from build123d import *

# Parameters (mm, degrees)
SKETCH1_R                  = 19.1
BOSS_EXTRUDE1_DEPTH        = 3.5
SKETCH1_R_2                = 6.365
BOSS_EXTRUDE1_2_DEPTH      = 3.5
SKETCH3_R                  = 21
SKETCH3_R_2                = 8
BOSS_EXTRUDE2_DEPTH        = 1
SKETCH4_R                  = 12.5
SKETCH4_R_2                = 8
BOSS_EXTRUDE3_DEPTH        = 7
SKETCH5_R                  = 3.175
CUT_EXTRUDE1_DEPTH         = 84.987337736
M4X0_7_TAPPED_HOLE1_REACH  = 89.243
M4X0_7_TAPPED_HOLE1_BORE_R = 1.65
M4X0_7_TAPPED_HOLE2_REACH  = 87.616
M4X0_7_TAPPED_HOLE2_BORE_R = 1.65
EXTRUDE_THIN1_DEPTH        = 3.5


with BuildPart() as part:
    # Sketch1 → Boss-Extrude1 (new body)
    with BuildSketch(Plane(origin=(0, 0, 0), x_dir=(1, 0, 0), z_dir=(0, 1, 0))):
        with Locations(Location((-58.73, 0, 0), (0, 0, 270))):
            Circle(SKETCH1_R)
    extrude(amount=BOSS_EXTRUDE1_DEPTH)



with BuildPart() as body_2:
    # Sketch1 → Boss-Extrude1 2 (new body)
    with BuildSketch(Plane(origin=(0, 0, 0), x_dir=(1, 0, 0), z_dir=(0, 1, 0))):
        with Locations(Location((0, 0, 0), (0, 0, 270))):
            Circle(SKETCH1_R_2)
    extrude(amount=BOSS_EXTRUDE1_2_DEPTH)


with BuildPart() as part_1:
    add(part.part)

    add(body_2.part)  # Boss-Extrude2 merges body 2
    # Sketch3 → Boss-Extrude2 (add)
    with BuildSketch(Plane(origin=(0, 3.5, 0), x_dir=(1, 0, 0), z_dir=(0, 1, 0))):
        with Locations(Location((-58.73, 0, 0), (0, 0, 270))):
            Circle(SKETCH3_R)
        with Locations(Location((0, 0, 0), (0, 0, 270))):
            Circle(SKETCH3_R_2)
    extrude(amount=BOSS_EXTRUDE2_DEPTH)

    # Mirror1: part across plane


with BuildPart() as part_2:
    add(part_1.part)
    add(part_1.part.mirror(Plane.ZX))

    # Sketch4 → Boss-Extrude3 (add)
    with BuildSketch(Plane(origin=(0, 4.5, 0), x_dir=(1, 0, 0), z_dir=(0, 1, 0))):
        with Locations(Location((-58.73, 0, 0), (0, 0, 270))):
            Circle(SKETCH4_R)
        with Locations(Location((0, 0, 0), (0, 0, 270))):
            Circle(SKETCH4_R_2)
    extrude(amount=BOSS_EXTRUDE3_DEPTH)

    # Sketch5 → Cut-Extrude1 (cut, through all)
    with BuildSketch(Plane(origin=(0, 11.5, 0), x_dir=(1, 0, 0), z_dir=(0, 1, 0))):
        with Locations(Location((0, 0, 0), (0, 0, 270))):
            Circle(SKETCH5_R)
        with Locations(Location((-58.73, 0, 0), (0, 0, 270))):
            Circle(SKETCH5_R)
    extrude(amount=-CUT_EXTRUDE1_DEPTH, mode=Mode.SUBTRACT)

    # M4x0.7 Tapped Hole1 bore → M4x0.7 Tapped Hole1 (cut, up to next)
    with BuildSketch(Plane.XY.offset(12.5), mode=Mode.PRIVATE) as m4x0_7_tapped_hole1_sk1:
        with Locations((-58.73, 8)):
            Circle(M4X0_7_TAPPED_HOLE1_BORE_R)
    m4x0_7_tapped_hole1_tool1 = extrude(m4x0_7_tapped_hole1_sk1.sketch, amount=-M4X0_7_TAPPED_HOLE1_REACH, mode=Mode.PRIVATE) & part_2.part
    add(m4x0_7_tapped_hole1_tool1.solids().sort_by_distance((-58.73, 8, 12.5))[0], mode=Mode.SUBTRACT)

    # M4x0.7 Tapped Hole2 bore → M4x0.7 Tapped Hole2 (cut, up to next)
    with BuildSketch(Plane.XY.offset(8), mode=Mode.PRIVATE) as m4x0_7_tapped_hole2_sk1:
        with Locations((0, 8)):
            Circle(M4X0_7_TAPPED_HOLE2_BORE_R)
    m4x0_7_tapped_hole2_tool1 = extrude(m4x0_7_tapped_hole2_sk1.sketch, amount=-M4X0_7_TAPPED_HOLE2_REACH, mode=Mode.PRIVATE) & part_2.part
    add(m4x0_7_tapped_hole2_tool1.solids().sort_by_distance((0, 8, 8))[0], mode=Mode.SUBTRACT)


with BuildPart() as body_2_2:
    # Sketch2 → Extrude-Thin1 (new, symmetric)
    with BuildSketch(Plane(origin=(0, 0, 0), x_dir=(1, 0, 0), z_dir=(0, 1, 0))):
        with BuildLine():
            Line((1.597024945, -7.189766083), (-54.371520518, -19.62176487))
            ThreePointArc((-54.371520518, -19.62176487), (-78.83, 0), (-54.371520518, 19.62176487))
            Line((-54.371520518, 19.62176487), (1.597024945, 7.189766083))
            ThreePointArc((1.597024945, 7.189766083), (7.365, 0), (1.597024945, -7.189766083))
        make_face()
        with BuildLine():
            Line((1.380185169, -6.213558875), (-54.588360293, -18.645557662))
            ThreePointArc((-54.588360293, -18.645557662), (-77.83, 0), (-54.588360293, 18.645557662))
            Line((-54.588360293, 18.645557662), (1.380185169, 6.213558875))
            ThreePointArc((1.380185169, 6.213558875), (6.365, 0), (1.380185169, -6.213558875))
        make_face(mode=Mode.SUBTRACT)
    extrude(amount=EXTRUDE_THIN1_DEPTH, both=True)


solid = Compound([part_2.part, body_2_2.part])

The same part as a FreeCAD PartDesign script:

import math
import FreeCAD as App
import Part
import Sketcher
Q = App.Units.Quantity

doc = App.newDocument("Part")
params = doc.addObject("Spreadsheet::Sheet", "Params")
for row, (alias, value) in enumerate([
    ("sketch1_diameter", "38.2 mm"),
    ("pad1_length", "3.5 mm"),
    ("sketch2_diameter", "12.73 mm"),
    ("pad2_length", "3.5 mm"),
    ("sketch3_diameter", "42 mm"),
    ("sketch3_diameter2", "16 mm"),
    ("pad3_length", "1 mm"),
    ("sketch4_diameter", "25 mm"),
    ("sketch4_diameter2", "16 mm"),
    ("pad4_length", "7 mm"),
    ("sketch5_diameter", "6.35 mm"),
    ("sketch6_diameter", "3.3 mm"),
    ("sketch7_diameter", "3.3 mm"),
    ("sketch8_radius", "20.1 mm"),
    ("sketch8_radius2", "19.1 mm"),
    ("pad5_length", "7 mm"),
], start=1):
    params.set(f"A{row}", alias)
    params.set(f"B{row}", "=" + value)
    params.setAlias(f"B{row}", alias)

body = doc.addObject("PartDesign::Body", "Body")

# Sketch on XZ plane
sketch1 = doc.addObject("Sketcher::SketchObject", "Sketch")
body.addObject(sketch1)
sketch1.AttachmentSupport = (doc.XZ_Plane, [""])
sketch1.MapMode = "FlatFace"
sketch1.addGeometry(Part.Circle(App.Vector(-59, 0, 0), App.Vector(0, 0, 1), 19), False)
sketch1.addConstraint(Sketcher.Constraint("PointOnObject", 0, 3, -1))
sketch1.addConstraint(Sketcher.Constraint("Diameter", 0, Q("38.2 mm")))
sketch1.addConstraint(Sketcher.Constraint("DistanceX", 0, 3, -1, 1, Q("58.73 mm")))
sketch1.setExpression("Constraints[1]", "Params.sketch1_diameter")
pad1 = doc.addObject("PartDesign::Pad", "Pad")
body.addObject(pad1)
pad1.Profile = sketch1
pad1.setExpression("Length", "Params.pad1_length")
pad1.Reversed = True
body2 = doc.addObject("PartDesign::Body", "Body001")

# Sketch on XZ plane
sketch2 = doc.addObject("Sketcher::SketchObject", "Sketch001")
body2.addObject(sketch2)
sketch2.AttachmentSupport = (doc.getObject("XZ_Plane001"), [""])
sketch2.MapMode = "FlatFace"
sketch2.addGeometry(Part.Circle(App.Vector(0, 0, 0), App.Vector(0, 0, 1), 6), False)
sketch2.addConstraint(Sketcher.Constraint("Coincident", 0, 3, -1, 1))
sketch2.addConstraint(Sketcher.Constraint("Diameter", 0, Q("12.73 mm")))
sketch2.setExpression("Constraints[1]", "Params.sketch2_diameter")
pad2 = doc.addObject("PartDesign::Pad", "Pad001")
body2.addObject(pad2)
pad2.Profile = sketch2
pad2.setExpression("Length", "Params.pad2_length")
pad2.Reversed = True
body.AllowCompound = True
doc.recompute()

boolean = doc.addObject("PartDesign::Boolean", "Boolean")
body.addObject(boolean)
boolean.Type = "Fuse"
boolean.addObjects([body2])

# Sketch on XZ plane
sketch3 = doc.addObject("Sketcher::SketchObject", "Sketch002")
body.addObject(sketch3)
sketch3.AttachmentSupport = (doc.XZ_Plane, [""])
sketch3.MapMode = "FlatFace"
sketch3.AttachmentOffset = App.Placement(App.Vector(0, 0, -3.5), App.Rotation())
sketch3.addGeometry(Part.Circle(App.Vector(-59, 0, 0), App.Vector(0, 0, 1), 21), False)
sketch3.addGeometry(Part.Circle(App.Vector(0, 0, 0), App.Vector(0, 0, 1), 8), False)
sketch3.addConstraint(Sketcher.Constraint("Coincident", 1, 3, -1, 1))
sketch3.addConstraint(Sketcher.Constraint("PointOnObject", 0, 3, -1))
sketch3.addConstraint(Sketcher.Constraint("Diameter", 0, Q("42 mm")))
sketch3.addConstraint(Sketcher.Constraint("Diameter", 1, Q("16 mm")))
sketch3.addConstraint(Sketcher.Constraint("DistanceX", 0, 3, -1, 1, Q("58.73 mm")))
sketch3.setExpression("Constraints[2]", "Params.sketch3_diameter")
sketch3.setExpression("Constraints[3]", "Params.sketch3_diameter2")
pad3 = doc.addObject("PartDesign::Pad", "Pad002")
body.addObject(pad3)
pad3.Profile = sketch3
pad3.setExpression("Length", "Params.pad3_length")
pad3.Reversed = True
body3 = doc.addObject("PartDesign::Body", "Body002")
body3.AllowCompound = True
doc.recompute()

body3.BaseFeature = body
doc.recompute()

mirroring = doc.addObject("Part::Mirroring", "Mirroring")
mirroring.Source = body
mirroring.Base = App.Vector(0, 0, 0)
mirroring.Normal = App.Vector(0, 1, 0)
body4 = doc.addObject("PartDesign::Body", "Body003")
body4.BaseFeature = mirroring
boolean2 = doc.addObject("PartDesign::Boolean", "Boolean001")
body3.addObject(boolean2)
boolean2.Type = "Fuse"
boolean2.addObjects([body4])
doc.recompute()

# Sketch on XZ plane
sketch4 = doc.addObject("Sketcher::SketchObject", "Sketch003")
body3.addObject(sketch4)
sketch4.AttachmentSupport = (doc.getObject("XZ_Plane002"), [""])
sketch4.MapMode = "FlatFace"
sketch4.AttachmentOffset = App.Placement(App.Vector(0, 0, -4.5), App.Rotation())
sketch4.addGeometry(Part.Circle(App.Vector(-59, 0, 0), App.Vector(0, 0, 1), 12), False)
sketch4.addGeometry(Part.Circle(App.Vector(0, 0, 0), App.Vector(0, 0, 1), 8), False)
sketch4.addConstraint(Sketcher.Constraint("Coincident", 1, 3, -1, 1))
sketch4.addConstraint(Sketcher.Constraint("PointOnObject", 0, 3, -1))
sketch4.addConstraint(Sketcher.Constraint("Diameter", 0, Q("25 mm")))
sketch4.addConstraint(Sketcher.Constraint("Diameter", 1, Q("16 mm")))
sketch4.addConstraint(Sketcher.Constraint("DistanceX", 0, 3, -1, 1, Q("58.73 mm")))
sketch4.setExpression("Constraints[2]", "Params.sketch4_diameter")
sketch4.setExpression("Constraints[3]", "Params.sketch4_diameter2")
pad4 = doc.addObject("PartDesign::Pad", "Pad003")
body3.addObject(pad4)
pad4.Profile = sketch4
pad4.setExpression("Length", "Params.pad4_length")
pad4.Reversed = True

# Sketch on XZ plane
sketch5 = doc.addObject("Sketcher::SketchObject", "Sketch004")
body3.addObject(sketch5)
sketch5.AttachmentSupport = (doc.getObject("XZ_Plane002"), [""])
sketch5.MapMode = "FlatFace"
sketch5.AttachmentOffset = App.Placement(App.Vector(0, 0, -11.5), App.Rotation())
sketch5.addGeometry(Part.Circle(App.Vector(0, 0, 0), App.Vector(0, 0, 1), 3.2), False)
sketch5.addGeometry(Part.Circle(App.Vector(-58.7, 0, 0), App.Vector(0, 0, 1), 3.2), False)
sketch5.addConstraint(Sketcher.Constraint("Coincident", 0, 3, -1, 1))
sketch5.addConstraint(Sketcher.Constraint("Equal", 0, 1))
sketch5.addConstraint(Sketcher.Constraint("PointOnObject", 1, 3, -1))
sketch5.addConstraint(Sketcher.Constraint("Diameter", 0, Q("6.35 mm")))
sketch5.addConstraint(Sketcher.Constraint("DistanceX", 1, 3, -1, 1, Q("58.73 mm")))
sketch5.setExpression("Constraints[3]", "Params.sketch5_diameter")
pocket1 = doc.addObject("PartDesign::Pocket", "Pocket")
body3.addObject(pocket1)
pocket1.Profile = sketch5
pocket1.Type = "ThroughAll"
pocket1.Reversed = True

# Sketch on XY plane
sketch6 = doc.addObject("Sketcher::SketchObject", "Sketch005")
body3.addObject(sketch6)
sketch6.AttachmentSupport = (doc.getObject("XY_Plane002"), [""])
sketch6.MapMode = "FlatFace"
sketch6.AttachmentOffset = App.Placement(App.Vector(0, 0, 12.5), App.Rotation())
sketch6.addGeometry(Part.Circle(App.Vector(-58.7, 8, 0), App.Vector(0, 0, 1), 1.6), False)
sketch6.addConstraint(Sketcher.Constraint("Diameter", 0, Q("3.3 mm")))
sketch6.addConstraint(Sketcher.Constraint("DistanceY", -1, 1, 0, 3, Q("8 mm")))
sketch6.addConstraint(Sketcher.Constraint("DistanceX", 0, 3, -1, 1, Q("58.73 mm")))
sketch6.setExpression("Constraints[0]", "Params.sketch6_diameter")
pocket2 = doc.addObject("PartDesign::Pocket", "Pocket001")
body3.addObject(pocket2)
pocket2.Profile = sketch6
pocket2.Type = "UpToFirst"

# Sketch on XY plane
sketch7 = doc.addObject("Sketcher::SketchObject", "Sketch006")
body3.addObject(sketch7)
sketch7.AttachmentSupport = (doc.getObject("XY_Plane002"), [""])
sketch7.MapMode = "FlatFace"
sketch7.AttachmentOffset = App.Placement(App.Vector(0, 0, 8), App.Rotation())
sketch7.addGeometry(Part.Circle(App.Vector(0, 8, 0), App.Vector(0, 0, 1), 1.6), False)
sketch7.addConstraint(Sketcher.Constraint("PointOnObject", 0, 3, -2))
sketch7.addConstraint(Sketcher.Constraint("Diameter", 0, Q("3.3 mm")))
sketch7.addConstraint(Sketcher.Constraint("DistanceY", -1, 1, 0, 3, Q("8 mm")))
sketch7.setExpression("Constraints[1]", "Params.sketch7_diameter")
pocket3 = doc.addObject("PartDesign::Pocket", "Pocket002")
body3.addObject(pocket3)
pocket3.Profile = sketch7
pocket3.Type = "UpToFirst"
body5 = doc.addObject("PartDesign::Body", "Body004")

# Sketch on XZ plane
sketch8 = doc.addObject("Sketcher::SketchObject", "Sketch007")
body5.addObject(sketch8)
sketch8.AttachmentSupport = (doc.getObject("XZ_Plane004"), [""])
sketch8.MapMode = "FlatFace"
sketch8.addGeometry(Part.LineSegment(App.Vector(-54, 20, 0), App.Vector(2, 7, 0)), False)
sketch8.addGeometry(Part.ArcOfCircle(Part.Circle(App.Vector(0, 0, 0), App.Vector(0, 0, 1), 7), math.radians(-77), math.radians(77)), False)
sketch8.addGeometry(Part.LineSegment(App.Vector(2, -7, 0), App.Vector(-54, -20, 0)), False)
sketch8.addGeometry(Part.ArcOfCircle(Part.Circle(App.Vector(-59, 0, 0), App.Vector(0, 0, 1), 20), math.radians(77), math.radians(283)), False)
sketch8.addGeometry(Part.LineSegment(App.Vector(1, 6, 0), App.Vector(-55, 19, 0)), False)
sketch8.addGeometry(Part.ArcOfCircle(Part.Circle(App.Vector(-59, 0, 0), App.Vector(0, 0, 1), 19), math.radians(77), math.radians(283)), False)
sketch8.addGeometry(Part.LineSegment(App.Vector(-55, -19, 0), App.Vector(1, -6, 0)), False)
sketch8.addGeometry(Part.ArcOfCircle(Part.Circle(App.Vector(0, 0, 0), App.Vector(0, 0, 1), 6), math.radians(-77), math.radians(77)), False)
sketch8.addConstraint(Sketcher.Constraint("Tangent", 0, 2, 1, 2))
sketch8.addConstraint(Sketcher.Constraint("Tangent", 1, 1, 2, 1))
sketch8.addConstraint(Sketcher.Constraint("Tangent", 2, 2, 3, 2))
sketch8.addConstraint(Sketcher.Constraint("Tangent", 3, 1, 0, 1))
sketch8.addConstraint(Sketcher.Constraint("Tangent", 4, 2, 5, 1))
sketch8.addConstraint(Sketcher.Constraint("Tangent", 5, 2, 6, 1))
sketch8.addConstraint(Sketcher.Constraint("Tangent", 6, 2, 7, 1))
sketch8.addConstraint(Sketcher.Constraint("Tangent", 7, 2, 4, 1))
sketch8.addConstraint(Sketcher.Constraint("Coincident", 1, 3, -1, 1))
sketch8.addConstraint(Sketcher.Constraint("Coincident", 7, 3, -1, 1))
sketch8.addConstraint(Sketcher.Constraint("Coincident", 5, 3, 3, 3))
sketch8.addConstraint(Sketcher.Constraint("PointOnObject", 3, 3, -1))
sketch8.addConstraint(Sketcher.Constraint("Parallel", 0, 4))
sketch8.addConstraint(Sketcher.Constraint("Radius", 3, Q("20.1 mm")))
sketch8.addConstraint(Sketcher.Constraint("Radius", 5, Q("19.1 mm")))
sketch8.addConstraint(Sketcher.Constraint("Radius", 1, Q("7.365 mm")))
sketch8.addConstraint(Sketcher.Constraint("DistanceX", 3, 3, -1, 1, Q("58.73 mm")))
sketch8.setExpression("Constraints[13]", "Params.sketch8_radius")
sketch8.setExpression("Constraints[14]", "Params.sketch8_radius2")
pad5 = doc.addObject("PartDesign::Pad", "Pad004")
body5.addObject(pad5)
pad5.Profile = sketch8
pad5.setExpression("Length", "Params.pad5_length")
pad5.Midplane = True
mirroring.Visibility = False

doc.recompute()
